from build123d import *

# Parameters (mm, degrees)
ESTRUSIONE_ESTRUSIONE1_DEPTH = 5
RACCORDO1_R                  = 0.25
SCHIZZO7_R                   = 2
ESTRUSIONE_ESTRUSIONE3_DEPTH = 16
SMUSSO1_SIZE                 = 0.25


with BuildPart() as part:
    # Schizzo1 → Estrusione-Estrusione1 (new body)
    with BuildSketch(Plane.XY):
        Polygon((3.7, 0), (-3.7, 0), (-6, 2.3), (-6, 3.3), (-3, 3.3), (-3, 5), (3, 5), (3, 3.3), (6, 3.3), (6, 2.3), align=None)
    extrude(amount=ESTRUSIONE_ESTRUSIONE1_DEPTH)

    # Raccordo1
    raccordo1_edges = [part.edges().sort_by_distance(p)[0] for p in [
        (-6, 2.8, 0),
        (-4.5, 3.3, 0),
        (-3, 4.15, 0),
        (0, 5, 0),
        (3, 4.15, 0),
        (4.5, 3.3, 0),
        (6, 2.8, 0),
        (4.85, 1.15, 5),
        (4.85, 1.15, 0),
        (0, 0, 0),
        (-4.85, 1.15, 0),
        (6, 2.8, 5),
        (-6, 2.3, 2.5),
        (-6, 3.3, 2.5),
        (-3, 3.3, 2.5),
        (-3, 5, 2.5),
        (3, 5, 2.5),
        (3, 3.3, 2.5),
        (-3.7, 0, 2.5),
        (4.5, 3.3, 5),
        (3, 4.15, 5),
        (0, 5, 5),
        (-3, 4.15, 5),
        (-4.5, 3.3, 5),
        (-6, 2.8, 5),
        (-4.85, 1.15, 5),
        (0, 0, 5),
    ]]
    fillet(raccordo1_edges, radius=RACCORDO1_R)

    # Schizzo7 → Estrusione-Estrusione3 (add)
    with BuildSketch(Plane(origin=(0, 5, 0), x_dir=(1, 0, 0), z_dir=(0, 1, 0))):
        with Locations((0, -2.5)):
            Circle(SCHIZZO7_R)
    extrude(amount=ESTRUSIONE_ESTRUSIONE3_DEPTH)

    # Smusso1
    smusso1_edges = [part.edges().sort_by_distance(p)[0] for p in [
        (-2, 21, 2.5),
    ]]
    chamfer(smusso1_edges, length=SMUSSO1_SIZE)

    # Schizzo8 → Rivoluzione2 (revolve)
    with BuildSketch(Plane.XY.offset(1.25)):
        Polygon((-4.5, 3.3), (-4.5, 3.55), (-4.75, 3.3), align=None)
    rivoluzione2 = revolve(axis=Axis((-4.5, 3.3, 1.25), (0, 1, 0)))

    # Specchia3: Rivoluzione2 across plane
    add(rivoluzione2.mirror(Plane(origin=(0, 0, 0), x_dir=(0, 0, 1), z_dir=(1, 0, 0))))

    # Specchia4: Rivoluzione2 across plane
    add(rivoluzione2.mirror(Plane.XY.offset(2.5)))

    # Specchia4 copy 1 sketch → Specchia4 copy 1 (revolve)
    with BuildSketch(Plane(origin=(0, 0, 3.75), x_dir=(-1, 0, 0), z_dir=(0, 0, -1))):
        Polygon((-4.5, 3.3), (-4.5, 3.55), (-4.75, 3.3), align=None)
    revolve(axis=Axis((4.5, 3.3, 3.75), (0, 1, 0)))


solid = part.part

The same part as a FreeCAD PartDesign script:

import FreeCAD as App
import Part
import Sketcher

V = App.Vector
Q = App.Units.Quantity


def edges_at(feature, points):
    """Names of the edges that pass closest to the given points."""
    edges = feature.Shape.Edges
    near = lambda p: min(range(len(edges)), key=lambda i: edges[i].distToShape(Part.Vertex(*p))[0])
    return sorted({f"Edge{near(p) + 1}" for p in points})


def add_polygon(sketch, points):
    """Adds a closed chain of lines whose ends are joined by coincident constraints."""
    first, n = sketch.GeometryCount, len(points)
    for a, b in zip(points, points[1:] + points[:1]):
        sketch.addGeometry(Part.LineSegment(App.Vector(*a, 0), App.Vector(*b, 0)), False)
    for i in range(n):
        sketch.addConstraint(Sketcher.Constraint("Coincident", first + i, 2, first + (i + 1) % n, 1))

doc = App.newDocument("Part")
params = doc.addObject("Spreadsheet::Sheet", "Params")
for row, (alias, value) in enumerate([
    ("sketch1_width", "3 mm"),
    ("sketch1_width2", "6 mm"),
    ("sketch1_height", "1 mm"),
    ("sketch1_width3", "7.4 mm"),
    ("sketch1_height2", "1.7 mm"),
    ("pad1_length", "5 mm"),
    ("fillet_radius", "0.25 mm"),
    ("sketch2_diameter", "4 mm"),
    ("pad2_length", "16 mm"),
    ("chamfer_size", "0.25 mm"),
    ("sketch3_width", "0.25 mm"),
    ("revolution_angle", "360 deg"),
    ("sketch4_width", "0.25 mm"),
    ("revolution2_angle", "360 deg"),
], start=1):
    params.set(f"A{row}", alias)
    params.set(f"B{row}", "=" + value)
    params.setAlias(f"B{row}", alias)

body = doc.addObject("PartDesign::Body", "Body")

sketch1 = body.newObject("Sketcher::SketchObject", "Sketch")
sketch1.AttachmentSupport = (doc.getObject("XY_Plane"), [""])
sketch1.MapMode = "FlatFace"
add_polygon(sketch1, [(-3.7, 0), (3.7, 0), (6, 2.3), (6, 3.3), (3, 3.3), (3, 5), (-3, 5), (-3, 3.3), (-6, 3.3), (-6, 2.3)])
sketch1.addConstraint(Sketcher.Constraint("Horizontal", 0))
sketch1.addConstraint(Sketcher.Constraint("Vertical", 2))
sketch1.addConstraint(Sketcher.Constraint("Horizontal", 3))
sketch1.addConstraint(Sketcher.Constraint("Vertical", 4))
sketch1.addConstraint(Sketcher.Constraint("Horizontal", 5))
sketch1.addConstraint(Sketcher.Constraint("Vertical", 6))
sketch1.addConstraint(Sketcher.Constraint("Horizontal", 7))
sketch1.addConstraint(Sketcher.Constraint("Vertical", 8))
sketch1.addConstraint(Sketcher.Constraint("Symmetric", 0, 2, 9, 2, -1, 1))
sketch1.addConstraint(Sketcher.Constraint("Symmetric", 3, 2, 6, 2, -2))
sketch1.addConstraint(Sketcher.Constraint("Symmetric", 1, 2, 8, 2, -2))
sketch1.addConstraint(Sketcher.Constraint("Perpendicular", 1, 9))
sketch1.addConstraint(Sketcher.Constraint("DistanceX", 3, 2, 3, 1, Q("3 mm")))
sketch1.addConstraint(Sketcher.Constraint("DistanceX", 5, 2, 5, 1, Q("6 mm")))
sketch1.addConstraint(Sketcher.Constraint("DistanceY", 2, 1, 2, 2, Q("1 mm")))
sketch1.addConstraint(Sketcher.Constraint("DistanceX", 0, 1, 0, 2, Q("7.4 mm")))
sketch1.addConstraint(Sketcher.Constraint("DistanceY", 4, 1, 4, 2, Q("1.7 mm")))
sketch1.setExpression("Constraints[22]", "Params.sketch1_width")
sketch1.setExpression("Constraints[23]", "Params.sketch1_width2")
sketch1.setExpression("Constraints[24]", "Params.sketch1_height")
sketch1.setExpression("Constraints[25]", "Params.sketch1_width3")
sketch1.setExpression("Constraints[26]", "Params.sketch1_height2")
pad1 = body.newObject("PartDesign::Pad", "Pad")
pad1.Profile = sketch1
pad1.setExpression("Length", "Params.pad1_length")
doc.recompute()

fillet = body.newObject("PartDesign::Fillet", "Fillet")
fillet.Base = (pad1, edges_at(pad1, [
    (-6, 2.8, 0),
    (-4.5, 3.3, 0),
    (-3, 4.15, 0),
    (0, 5, 0),
    (3, 4.15, 0),
    (4.5, 3.3, 0),
    (6, 2.8, 0),
    (4.85, 1.15, 5),
    (4.85, 1.15, 0),
    (0, 0, 0),
    (-4.85, 1.15, 0),
    (6, 2.8, 5),
    (-6, 2.3, 2.5),
    (-6, 3.3, 2.5),
    (-3, 3.3, 2.5),
    (-3, 5, 2.5),
    (3, 5, 2.5),
    (3, 3.3, 2.5),
    (-3.7, 0, 2.5),
    (4.5, 3.3, 5),
    (3, 4.15, 5),
    (0, 5, 5),
    (-3, 4.15, 5),
    (-4.5, 3.3, 5),
    (-6, 2.8, 5),
    (-4.85, 1.15, 5),
    (0, 0, 5),
]))
fillet.setExpression("Radius", "Params.fillet_radius")

sketch2 = body.newObject("Sketcher::SketchObject", "Sketch001")
sketch2.AttachmentSupport = (doc.getObject("XZ_Plane"), [""])
sketch2.MapMode = "FlatFace"
sketch2.AttachmentOffset = App.Placement(V(0, 0, -5), App.Rotation())
sketch2.addGeometry(Part.Circle(V(0, 2.5, 0), V(0, 0, 1), 2), False)
sketch2.addConstraint(Sketcher.Constraint("PointOnObject", 0, 3, -2))
sketch2.addConstraint(Sketcher.Constraint("Diameter", 0, Q("4 mm")))
sketch2.addConstraint(Sketcher.Constraint("DistanceY", -1, 1, 0, 3, Q("2.5 mm")))
sketch2.setExpression("Constraints[1]", "Params.sketch2_diameter")
pad2 = body.newObject("PartDesign::Pad", "Pad001")
pad2.Profile = sketch2
pad2.setExpression("Length", "Params.pad2_length")
pad2.Reversed = True
doc.recompute()

chamfer = body.newObject("PartDesign::Chamfer", "Chamfer")
chamfer.Base = (pad2, edges_at(pad2, [(-2, 21, 2.5)]))
chamfer.setExpression("Size", "Params.chamfer_size")

sketch3 = body.newObject("Sketcher::SketchObject", "Sketch002")
sketch3.AttachmentSupport = (doc.getObject("XY_Plane"), [""])
sketch3.MapMode = "FlatFace"
sketch3.AttachmentOffset = App.Placement(V(0, 0, 1.25), App.Rotation())
add_polygon(sketch3, [(-4.5, 3.3), (-4.5, 3.55), (-4.75, 3.3)])
sketch3.addGeometry(Part.LineSegment(V(-4.5, 3.3, 0), V(-4.5, 3.55, 0)), True)
sketch3.addConstraint(Sketcher.Constraint("Vertical", 0))
sketch3.addConstraint(Sketcher.Constraint("Horizontal", 2))
sketch3.addConstraint(Sketcher.Constraint("Vertical", 3))
sketch3.addConstraint(Sketcher.Constraint("Coincident", 3, 1, 2, 2))
sketch3.addConstraint(Sketcher.Constraint("Equal", 2, 0))
sketch3.addConstraint(Sketcher.Constraint("Equal", 0, 3))
sketch3.addConstraint(Sketcher.Constraint("DistanceX", 2, 1, 2, 2, Q("0.25 mm")))
sketch3.addConstraint(Sketcher.Constraint("DistanceX", 0, 2, -1, 1, Q("4.5 mm")))
sketch3.addConstraint(Sketcher.Constraint("DistanceY", -1, 1, 1, 2, Q("3.3 mm")))
sketch3.setExpression("Constraints[9]", "Params.sketch3_width")
revolution = body.newObject("PartDesign::Revolution", "Revolution")
revolution.Profile = sketch3
revolution.ReferenceAxis = (sketch3, ["Axis0"])
revolution.setExpression("Angle", "Params.revolution_angle")
doc.recompute()

mirrored = body.newObject("PartDesign::Mirrored", "Mirrored")
mirrored.Originals = [revolution]
mirrored.MirrorPlane = (doc.getObject("YZ_Plane"), [""])
body.Tip = mirrored
doc.recompute()

datumplane = body.newObject("PartDesign::Plane", "DatumPlane")
datumplane.AttachmentSupport = (doc.getObject("XY_Plane"), [""])
datumplane.MapMode = "FlatFace"
datumplane.AttachmentOffset = App.Placement(V(0, 0, 2.5), App.Rotation())
mirrored2 = body.newObject("PartDesign::Mirrored", "Mirrored001")
mirrored2.Originals = [revolution]
mirrored2.MirrorPlane = (datumplane, [""])
body.Tip = mirrored2

sketch4 = body.newObject("Sketcher::SketchObject", "Sketch003")
sketch4.AttachmentSupport = (doc.getObject("XY_Plane"), [""])
sketch4.MapMode = "FlatFace"
sketch4.AttachmentOffset = App.Placement(V(0, 0, 3.75), App.Rotation())
add_polygon(sketch4, [(4.5, 3.3), (4.5, 3.55), (4.75, 3.3)])
sketch4.addGeometry(Part.LineSegment(V(4.5, 3.3, 0), V(4.5, 3.55, 0)), True)
sketch4.addConstraint(Sketcher.Constraint("Vertical", 0))
sketch4.addConstraint(Sketcher.Constraint("Horizontal", 2))
sketch4.addConstraint(Sketcher.Constraint("Vertical", 3))
sketch4.addConstraint(Sketcher.Constraint("Coincident", 3, 1, 2, 2))
sketch4.addConstraint(Sketcher.Constraint("Equal", 2, 0))
sketch4.addConstraint(Sketcher.Constraint("Equal", 0, 3))
sketch4.addConstraint(Sketcher.Constraint("DistanceX", 2, 2, 2, 1, Q("0.25 mm")))
sketch4.addConstraint(Sketcher.Constraint("DistanceX", -1, 1, 0, 2, Q("4.5 mm")))
sketch4.addConstraint(Sketcher.Constraint("DistanceY", -1, 1, 1, 2, Q("3.3 mm")))
sketch4.setExpression("Constraints[9]", "Params.sketch4_width")
revolution2 = body.newObject("PartDesign::Revolution", "Revolution001")
revolution2.Profile = sketch4
revolution2.ReferenceAxis = (sketch4, ["Axis0"])
revolution2.setExpression("Angle", "Params.revolution2_angle")

doc.recompute()
